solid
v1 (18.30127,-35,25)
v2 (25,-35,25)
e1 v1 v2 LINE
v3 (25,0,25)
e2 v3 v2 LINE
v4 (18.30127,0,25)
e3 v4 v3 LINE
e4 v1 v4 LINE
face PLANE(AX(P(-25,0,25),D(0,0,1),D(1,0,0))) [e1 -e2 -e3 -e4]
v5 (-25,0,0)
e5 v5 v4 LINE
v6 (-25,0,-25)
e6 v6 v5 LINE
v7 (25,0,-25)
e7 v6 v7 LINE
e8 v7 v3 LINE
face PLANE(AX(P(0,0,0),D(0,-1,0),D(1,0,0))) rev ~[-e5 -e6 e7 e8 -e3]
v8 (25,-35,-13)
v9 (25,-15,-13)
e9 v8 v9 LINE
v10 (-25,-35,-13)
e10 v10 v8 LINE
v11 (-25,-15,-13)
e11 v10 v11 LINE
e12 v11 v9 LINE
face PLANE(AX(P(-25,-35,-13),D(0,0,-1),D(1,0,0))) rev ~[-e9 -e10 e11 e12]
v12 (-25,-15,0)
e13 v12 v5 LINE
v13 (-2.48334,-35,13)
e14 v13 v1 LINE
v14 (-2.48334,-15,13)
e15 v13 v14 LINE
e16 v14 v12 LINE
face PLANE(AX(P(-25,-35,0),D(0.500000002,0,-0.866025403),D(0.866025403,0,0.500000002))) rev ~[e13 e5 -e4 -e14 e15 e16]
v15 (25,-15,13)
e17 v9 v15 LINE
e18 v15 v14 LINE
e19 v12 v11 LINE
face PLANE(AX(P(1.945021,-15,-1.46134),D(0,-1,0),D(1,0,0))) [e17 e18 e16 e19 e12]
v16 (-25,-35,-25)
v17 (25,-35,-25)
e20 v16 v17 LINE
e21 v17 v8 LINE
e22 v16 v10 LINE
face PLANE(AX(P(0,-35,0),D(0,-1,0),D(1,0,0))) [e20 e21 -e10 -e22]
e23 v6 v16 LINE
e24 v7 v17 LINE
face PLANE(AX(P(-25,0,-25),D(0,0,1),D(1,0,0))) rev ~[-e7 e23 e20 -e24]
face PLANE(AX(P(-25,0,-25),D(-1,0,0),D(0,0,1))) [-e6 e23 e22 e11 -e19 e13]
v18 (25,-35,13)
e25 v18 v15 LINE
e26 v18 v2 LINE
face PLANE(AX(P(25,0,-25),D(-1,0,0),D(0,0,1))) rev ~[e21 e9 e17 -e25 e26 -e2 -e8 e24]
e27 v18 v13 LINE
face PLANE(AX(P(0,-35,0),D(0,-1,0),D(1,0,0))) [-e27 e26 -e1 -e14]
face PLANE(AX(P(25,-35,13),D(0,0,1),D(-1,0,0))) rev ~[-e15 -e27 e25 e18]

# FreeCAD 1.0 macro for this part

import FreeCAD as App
import Part
import Sketcher
from FreeCAD import Vector
Q = App.Units.Quantity


def add_polygon(sketch, points):
    """Adds a closed chain of lines whose ends are joined by coincident constraints."""
    first, n = sketch.GeometryCount, len(points)
    for a, b in zip(points, points[1:] + points[:1]):
        sketch.addGeometry(Part.LineSegment(App.Vector(*a, 0), App.Vector(*b, 0)), False)
    for i in range(n):
        sketch.addConstraint(Sketcher.Constraint("Coincident", first + i, 2, first + (i + 1) % n, 1))

doc = App.newDocument("Part")
params = doc.addObject("Spreadsheet::Sheet", "Params")
for row, (alias, value) in enumerate([
    ("sketch1_width", "50 mm"),
    ("pad1_length", "35 mm"),
    ("sketch2_height", "25 mm"),
    ("sketch3_width", "50 mm"),
    ("sketch3_height", "13 mm"),
    ("pocket2_length", "20 mm"),
], start=1):
    params.set(f"A{row}", alias)
    params.set(f"B{row}", "=" + value)
    params.setAlias(f"B{row}", alias)

body = doc.addObject("PartDesign::Body", "Body")

# Sketch on XZ plane
sketch1 = body.newObject("Sketcher::SketchObject", "Sketch")
sketch1.AttachmentSupport = (doc.getObject("XZ_Plane"), [""])
sketch1.MapMode = "FlatFace"
add_polygon(sketch1, [(-25, 25), (-25, -25), (25, -25), (25, 25)])  # lines 0-3
sketch1.addConstraint([
    Sketcher.Constraint("Vertical", 0),
    Sketcher.Constraint("Horizontal", 1),
    Sketcher.Constraint("Vertical", 2),
    Sketcher.Constraint("Horizontal", 3),
    Sketcher.Constraint("Symmetric", 0, 2, 2, 2, -1, 1),
    Sketcher.Constraint("Equal", 3, 0),
    Sketcher.Constraint("DistanceX", 1, 1, 1, 2, Q("50 mm")),
])
sketch1.setExpression("Constraints[10]", "Params.sketch1_width")
pad1 = body.newObject("PartDesign::Pad", "Pad")
pad1.Profile = sketch1
pad1.setExpression("Length", "Params.pad1_length")

# Sketch on XZ plane
sketch2 = body.newObject("Sketcher::SketchObject", "Sketch001")
sketch2.AttachmentSupport = (doc.getObject("XZ_Plane"), [""])
sketch2.MapMode = "FlatFace"
sketch2.AttachmentOffset = App.Placement(Vector(0, 0, 35), App.Rotation())
add_polygon(sketch2, [(-25, 0), (18.30127, 25), (-25, 25)])  # lines 0-2
sketch2.addConstraint([
    Sketcher.Constraint("Horizontal", 1),
    Sketcher.Constraint("Vertical", 2),
    Sketcher.Constraint("PointOnObject", 2, 2, -1),
    Sketcher.Constraint("DistanceY", 2, 2, 2, 1, Q("25 mm")),
    Sketcher.Constraint("Angle", 0, Q("30 deg")),
    Sketcher.Constraint("DistanceX", 1, 2, -1, 1, Q("25 mm")),
])
sketch2.setExpression("Constraints[6]", "Params.sketch2_height")
pocket1 = body.newObject("PartDesign::Pocket", "Pocket")
pocket1.Profile = sketch2
pocket1.Type = "ThroughAll"

# Sketch on XZ plane
sketch3 = body.newObject("Sketcher::SketchObject", "Sketch002")
sketch3.AttachmentSupport = (doc.getObject("XZ_Plane"), [""])
sketch3.MapMode = "FlatFace"
sketch3.AttachmentOffset = App.Placement(Vector(0, 0, 35), App.Rotation())
add_polygon(sketch3, [(-25, 0), (-25, -13), (25, -13), (25, 13), (-2.48334, 13)])  # lines 0-4
sketch3.addConstraint([
    Sketcher.Constraint("Vertical", 0),
    Sketcher.Constraint("Horizontal", 1),
    Sketcher.Constraint("Vertical", 2),
    Sketcher.Constraint("Horizontal", 3),
    Sketcher.Constraint("Symmetric", 0, 2, 2, 2, -1, 1),
    Sketcher.Constraint("PointOnObject", 4, 2, -1),
    Sketcher.Constraint("DistanceX", 1, 1, 1, 2, Q("50 mm")),
    Sketcher.Constraint("DistanceY", 0, 2, 0, 1, Q("13 mm")),
    Sketcher.Constraint("Angle", 4, Q("-149.999999 deg")),
])
sketch3.setExpression("Constraints[11]", "Params.sketch3_width")
sketch3.setExpression("Constraints[12]", "Params.sketch3_height")
pocket2 = body.newObject("PartDesign::Pocket", "Pocket001")
pocket2.Profile = sketch3
pocket2.setExpression("Length", "Params.pocket2_length")

doc.recompute()
